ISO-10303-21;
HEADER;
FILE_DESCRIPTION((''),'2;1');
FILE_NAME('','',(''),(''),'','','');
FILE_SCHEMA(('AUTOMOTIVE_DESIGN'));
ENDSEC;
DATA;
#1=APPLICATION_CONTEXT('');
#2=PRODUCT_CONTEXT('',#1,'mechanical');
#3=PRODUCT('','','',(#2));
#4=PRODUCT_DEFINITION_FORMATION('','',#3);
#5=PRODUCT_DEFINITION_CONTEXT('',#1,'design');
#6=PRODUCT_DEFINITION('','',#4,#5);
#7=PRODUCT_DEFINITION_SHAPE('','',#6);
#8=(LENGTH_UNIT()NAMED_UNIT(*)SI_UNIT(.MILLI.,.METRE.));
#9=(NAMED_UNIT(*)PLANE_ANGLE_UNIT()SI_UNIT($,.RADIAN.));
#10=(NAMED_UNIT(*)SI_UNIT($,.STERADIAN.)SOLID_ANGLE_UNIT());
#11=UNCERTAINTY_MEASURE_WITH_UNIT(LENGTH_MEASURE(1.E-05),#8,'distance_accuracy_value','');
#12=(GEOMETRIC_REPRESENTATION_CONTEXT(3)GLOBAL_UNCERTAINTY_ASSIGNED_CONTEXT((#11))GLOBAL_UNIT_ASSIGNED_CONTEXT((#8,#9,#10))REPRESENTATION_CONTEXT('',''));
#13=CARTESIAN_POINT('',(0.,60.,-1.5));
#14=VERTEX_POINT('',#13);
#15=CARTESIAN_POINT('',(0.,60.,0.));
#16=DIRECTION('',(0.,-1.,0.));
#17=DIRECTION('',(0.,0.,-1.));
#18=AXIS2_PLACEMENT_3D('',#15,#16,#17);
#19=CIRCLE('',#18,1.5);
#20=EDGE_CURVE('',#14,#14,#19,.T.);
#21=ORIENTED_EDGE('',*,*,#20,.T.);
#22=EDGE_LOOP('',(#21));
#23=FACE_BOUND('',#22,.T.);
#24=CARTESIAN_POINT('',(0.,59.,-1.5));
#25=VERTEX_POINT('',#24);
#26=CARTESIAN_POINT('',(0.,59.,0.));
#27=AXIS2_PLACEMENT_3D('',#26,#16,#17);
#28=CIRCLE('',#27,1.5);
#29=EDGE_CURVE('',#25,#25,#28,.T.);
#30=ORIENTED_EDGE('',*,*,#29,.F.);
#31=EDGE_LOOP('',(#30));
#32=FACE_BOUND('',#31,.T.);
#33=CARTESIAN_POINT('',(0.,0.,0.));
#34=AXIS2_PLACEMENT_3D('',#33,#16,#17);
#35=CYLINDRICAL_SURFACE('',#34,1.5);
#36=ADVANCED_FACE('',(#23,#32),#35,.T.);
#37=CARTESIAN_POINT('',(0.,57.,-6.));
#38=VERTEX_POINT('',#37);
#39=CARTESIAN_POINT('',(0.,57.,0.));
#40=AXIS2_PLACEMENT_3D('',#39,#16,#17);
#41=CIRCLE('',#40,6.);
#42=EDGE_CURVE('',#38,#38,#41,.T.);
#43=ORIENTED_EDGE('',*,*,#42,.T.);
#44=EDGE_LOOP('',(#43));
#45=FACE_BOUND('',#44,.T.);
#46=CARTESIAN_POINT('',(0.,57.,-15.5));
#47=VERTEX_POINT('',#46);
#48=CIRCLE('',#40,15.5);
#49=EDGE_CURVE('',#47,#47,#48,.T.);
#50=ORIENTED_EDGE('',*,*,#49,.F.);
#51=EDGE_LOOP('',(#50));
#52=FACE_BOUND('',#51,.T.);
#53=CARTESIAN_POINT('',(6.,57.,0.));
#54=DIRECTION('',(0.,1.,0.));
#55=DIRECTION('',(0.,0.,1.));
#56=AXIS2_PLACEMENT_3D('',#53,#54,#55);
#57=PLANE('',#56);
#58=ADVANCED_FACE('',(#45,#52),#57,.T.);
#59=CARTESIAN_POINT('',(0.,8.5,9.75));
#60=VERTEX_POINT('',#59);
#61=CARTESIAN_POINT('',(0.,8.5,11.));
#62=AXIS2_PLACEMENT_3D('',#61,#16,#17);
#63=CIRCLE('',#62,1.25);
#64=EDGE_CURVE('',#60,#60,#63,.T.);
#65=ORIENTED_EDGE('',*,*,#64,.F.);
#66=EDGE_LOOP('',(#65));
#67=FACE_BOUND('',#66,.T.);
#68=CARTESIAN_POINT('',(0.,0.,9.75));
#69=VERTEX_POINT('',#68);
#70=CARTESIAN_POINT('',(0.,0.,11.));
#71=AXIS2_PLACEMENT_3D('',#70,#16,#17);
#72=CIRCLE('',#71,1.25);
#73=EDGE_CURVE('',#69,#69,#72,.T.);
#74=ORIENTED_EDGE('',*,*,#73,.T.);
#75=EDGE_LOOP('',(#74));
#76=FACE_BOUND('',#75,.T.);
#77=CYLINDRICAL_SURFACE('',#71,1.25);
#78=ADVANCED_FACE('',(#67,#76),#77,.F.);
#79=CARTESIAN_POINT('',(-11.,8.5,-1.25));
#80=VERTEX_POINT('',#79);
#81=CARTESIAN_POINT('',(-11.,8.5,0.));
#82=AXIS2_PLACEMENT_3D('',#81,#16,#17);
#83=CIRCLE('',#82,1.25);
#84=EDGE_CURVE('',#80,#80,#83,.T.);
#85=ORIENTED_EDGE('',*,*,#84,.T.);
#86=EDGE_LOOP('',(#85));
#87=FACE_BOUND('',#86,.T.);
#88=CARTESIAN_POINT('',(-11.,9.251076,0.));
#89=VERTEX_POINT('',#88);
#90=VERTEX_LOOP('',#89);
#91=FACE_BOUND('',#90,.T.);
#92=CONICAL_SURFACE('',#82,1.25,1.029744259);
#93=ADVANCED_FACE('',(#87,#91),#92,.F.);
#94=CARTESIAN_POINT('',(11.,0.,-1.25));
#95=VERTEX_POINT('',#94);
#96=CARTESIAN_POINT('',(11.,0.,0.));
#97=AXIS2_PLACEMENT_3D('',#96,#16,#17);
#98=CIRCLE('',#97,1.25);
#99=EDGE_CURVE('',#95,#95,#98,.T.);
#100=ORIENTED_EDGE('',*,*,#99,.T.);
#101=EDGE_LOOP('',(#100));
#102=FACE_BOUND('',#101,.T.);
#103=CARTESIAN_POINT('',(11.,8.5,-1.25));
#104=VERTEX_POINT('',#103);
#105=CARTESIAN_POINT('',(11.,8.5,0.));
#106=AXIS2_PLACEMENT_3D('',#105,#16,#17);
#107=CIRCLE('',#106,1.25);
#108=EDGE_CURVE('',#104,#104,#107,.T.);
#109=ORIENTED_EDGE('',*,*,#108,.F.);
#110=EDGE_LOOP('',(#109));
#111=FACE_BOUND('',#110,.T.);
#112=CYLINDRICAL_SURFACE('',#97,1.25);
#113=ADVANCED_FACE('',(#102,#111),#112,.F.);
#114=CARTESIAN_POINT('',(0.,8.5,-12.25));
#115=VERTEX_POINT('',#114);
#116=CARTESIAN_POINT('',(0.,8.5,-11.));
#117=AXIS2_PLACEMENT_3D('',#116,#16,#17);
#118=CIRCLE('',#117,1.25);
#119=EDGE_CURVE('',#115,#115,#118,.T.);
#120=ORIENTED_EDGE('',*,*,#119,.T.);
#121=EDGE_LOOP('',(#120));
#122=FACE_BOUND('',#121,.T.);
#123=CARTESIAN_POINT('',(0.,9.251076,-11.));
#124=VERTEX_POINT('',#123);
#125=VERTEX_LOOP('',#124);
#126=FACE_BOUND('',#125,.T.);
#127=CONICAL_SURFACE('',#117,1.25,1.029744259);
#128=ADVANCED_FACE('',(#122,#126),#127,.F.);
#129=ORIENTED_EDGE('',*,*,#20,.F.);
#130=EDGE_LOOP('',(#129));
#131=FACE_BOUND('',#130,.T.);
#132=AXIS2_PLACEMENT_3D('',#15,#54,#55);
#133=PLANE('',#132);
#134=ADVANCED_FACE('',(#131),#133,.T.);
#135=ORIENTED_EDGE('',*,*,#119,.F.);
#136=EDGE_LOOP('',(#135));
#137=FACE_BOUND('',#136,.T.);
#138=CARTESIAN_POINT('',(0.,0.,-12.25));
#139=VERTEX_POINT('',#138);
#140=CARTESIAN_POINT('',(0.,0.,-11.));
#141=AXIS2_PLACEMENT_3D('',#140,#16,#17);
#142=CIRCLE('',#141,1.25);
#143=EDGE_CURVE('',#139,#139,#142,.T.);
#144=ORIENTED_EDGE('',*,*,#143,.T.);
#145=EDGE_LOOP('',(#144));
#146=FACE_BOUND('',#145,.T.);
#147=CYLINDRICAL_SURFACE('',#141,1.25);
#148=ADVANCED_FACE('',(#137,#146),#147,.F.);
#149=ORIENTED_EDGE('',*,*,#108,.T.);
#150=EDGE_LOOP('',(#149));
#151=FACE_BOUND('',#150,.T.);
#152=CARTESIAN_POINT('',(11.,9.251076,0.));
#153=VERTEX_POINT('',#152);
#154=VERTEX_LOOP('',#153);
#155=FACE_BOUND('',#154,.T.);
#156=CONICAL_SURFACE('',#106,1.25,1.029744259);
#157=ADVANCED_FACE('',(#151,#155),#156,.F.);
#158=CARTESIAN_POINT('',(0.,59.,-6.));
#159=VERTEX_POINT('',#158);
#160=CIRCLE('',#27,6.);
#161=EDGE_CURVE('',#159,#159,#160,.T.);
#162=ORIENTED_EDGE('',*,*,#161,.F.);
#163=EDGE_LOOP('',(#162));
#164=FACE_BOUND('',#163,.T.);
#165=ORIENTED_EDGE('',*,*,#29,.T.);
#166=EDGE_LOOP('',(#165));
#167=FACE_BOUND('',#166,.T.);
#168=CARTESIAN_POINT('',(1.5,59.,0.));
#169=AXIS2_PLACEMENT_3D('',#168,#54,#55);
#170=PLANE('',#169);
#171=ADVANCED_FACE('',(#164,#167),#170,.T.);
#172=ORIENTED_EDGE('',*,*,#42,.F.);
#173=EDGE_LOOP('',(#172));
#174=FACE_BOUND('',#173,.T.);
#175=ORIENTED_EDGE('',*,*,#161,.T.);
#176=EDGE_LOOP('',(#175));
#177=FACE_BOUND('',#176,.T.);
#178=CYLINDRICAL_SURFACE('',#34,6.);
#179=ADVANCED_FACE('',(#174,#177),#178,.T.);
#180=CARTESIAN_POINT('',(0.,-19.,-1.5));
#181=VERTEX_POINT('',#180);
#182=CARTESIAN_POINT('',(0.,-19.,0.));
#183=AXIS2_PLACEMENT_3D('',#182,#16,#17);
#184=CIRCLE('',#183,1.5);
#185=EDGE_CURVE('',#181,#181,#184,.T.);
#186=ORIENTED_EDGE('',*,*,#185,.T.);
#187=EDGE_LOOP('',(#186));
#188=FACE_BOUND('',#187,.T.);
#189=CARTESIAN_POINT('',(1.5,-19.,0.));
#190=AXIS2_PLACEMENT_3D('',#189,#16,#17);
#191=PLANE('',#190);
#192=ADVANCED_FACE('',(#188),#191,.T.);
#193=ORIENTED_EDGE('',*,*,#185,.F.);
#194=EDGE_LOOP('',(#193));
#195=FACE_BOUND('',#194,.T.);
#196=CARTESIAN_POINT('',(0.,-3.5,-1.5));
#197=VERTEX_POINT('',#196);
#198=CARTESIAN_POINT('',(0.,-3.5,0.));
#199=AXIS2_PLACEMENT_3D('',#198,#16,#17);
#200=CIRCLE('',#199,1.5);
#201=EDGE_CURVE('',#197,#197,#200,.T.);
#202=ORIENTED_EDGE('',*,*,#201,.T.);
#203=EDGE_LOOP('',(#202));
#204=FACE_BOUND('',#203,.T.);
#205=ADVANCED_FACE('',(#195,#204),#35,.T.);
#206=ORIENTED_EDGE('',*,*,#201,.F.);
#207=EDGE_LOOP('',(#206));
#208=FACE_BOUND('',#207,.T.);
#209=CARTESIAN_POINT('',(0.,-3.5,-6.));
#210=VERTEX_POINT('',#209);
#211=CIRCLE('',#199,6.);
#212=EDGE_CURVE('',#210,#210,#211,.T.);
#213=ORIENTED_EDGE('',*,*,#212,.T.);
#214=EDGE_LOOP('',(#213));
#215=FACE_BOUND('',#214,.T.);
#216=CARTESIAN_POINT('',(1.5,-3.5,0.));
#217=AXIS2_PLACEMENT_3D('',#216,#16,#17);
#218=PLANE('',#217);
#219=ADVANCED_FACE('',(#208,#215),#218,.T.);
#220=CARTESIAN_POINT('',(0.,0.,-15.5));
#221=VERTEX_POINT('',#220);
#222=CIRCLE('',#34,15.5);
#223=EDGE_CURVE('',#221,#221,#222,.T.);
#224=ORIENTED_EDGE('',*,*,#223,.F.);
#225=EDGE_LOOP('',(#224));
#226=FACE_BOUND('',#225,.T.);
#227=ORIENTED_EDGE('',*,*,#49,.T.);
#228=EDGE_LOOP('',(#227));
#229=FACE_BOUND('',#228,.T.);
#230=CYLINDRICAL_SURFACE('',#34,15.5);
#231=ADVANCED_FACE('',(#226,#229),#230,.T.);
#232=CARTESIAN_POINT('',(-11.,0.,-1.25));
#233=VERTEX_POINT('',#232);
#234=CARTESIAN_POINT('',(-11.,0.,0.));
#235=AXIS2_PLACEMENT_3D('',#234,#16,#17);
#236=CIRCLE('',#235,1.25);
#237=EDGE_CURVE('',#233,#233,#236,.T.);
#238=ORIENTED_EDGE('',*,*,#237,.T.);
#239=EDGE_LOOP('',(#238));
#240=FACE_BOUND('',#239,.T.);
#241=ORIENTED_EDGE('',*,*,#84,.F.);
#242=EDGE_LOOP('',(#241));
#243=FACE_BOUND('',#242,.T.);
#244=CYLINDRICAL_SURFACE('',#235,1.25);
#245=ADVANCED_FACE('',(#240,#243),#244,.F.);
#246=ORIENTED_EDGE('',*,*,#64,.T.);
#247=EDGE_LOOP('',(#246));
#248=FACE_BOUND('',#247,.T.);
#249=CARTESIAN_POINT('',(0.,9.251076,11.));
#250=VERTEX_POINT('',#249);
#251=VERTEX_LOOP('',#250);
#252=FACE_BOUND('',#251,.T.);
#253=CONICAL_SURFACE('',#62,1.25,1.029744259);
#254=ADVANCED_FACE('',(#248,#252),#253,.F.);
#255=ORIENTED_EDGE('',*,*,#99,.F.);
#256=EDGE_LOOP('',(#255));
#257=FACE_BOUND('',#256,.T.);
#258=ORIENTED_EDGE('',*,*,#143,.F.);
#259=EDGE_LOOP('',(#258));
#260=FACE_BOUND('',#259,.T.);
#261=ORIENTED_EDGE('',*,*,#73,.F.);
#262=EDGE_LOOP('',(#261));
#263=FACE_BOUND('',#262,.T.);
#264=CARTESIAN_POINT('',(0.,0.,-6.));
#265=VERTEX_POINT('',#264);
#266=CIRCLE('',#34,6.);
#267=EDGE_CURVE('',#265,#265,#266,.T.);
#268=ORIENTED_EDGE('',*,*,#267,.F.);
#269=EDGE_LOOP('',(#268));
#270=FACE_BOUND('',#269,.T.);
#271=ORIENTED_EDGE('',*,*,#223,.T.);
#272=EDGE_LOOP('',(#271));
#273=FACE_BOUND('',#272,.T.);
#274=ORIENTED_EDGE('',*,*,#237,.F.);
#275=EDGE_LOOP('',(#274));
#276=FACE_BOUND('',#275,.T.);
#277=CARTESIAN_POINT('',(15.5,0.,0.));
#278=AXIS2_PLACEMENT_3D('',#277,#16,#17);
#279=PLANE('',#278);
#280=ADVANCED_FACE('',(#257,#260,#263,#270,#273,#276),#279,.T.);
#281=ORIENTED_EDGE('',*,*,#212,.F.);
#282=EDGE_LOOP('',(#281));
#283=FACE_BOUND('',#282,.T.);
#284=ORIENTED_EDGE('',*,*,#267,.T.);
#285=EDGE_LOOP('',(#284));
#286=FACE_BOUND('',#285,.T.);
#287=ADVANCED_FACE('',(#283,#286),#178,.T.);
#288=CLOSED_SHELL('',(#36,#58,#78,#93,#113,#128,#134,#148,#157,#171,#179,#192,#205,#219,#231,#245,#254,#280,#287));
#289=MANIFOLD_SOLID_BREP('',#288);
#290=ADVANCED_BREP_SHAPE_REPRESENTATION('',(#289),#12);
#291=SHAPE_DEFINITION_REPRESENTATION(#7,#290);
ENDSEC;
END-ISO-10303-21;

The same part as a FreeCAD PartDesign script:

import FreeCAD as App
import Part
import Sketcher
from FreeCAD import Vector


def add_polygon(sketch, points):
    """Adds a closed chain of lines whose ends are joined by coincident constraints."""
    first, n = sketch.GeometryCount, len(points)
    for a, b in zip(points, points[1:] + points[:1]):
        sketch.addGeometry(Part.LineSegment(App.Vector(*a, 0), App.Vector(*b, 0)), False)
    for i in range(n):
        sketch.addConstraint(Sketcher.Constraint("Coincident", first + i, 2, first + (i + 1) % n, 1))

doc = App.newDocument("Part")
body = doc.addObject("PartDesign::Body", "Body")

# Sketch on XY plane
sketch1 = body.newObject("Sketcher::SketchObject", "Sketch")
sketch1.AttachmentSupport = (doc.getObject("XY_Plane"), [""])
sketch1.MapMode = "FlatFace"
add_polygon(sketch1, [(0, 60), (0, -19), (1.5, -19), (1.5, -3.5), (6, -3.5), (6, 0), (15.5, 0), (15.5, 57), (6, 57), (6, 59), (1.5, 59), (1.5, 60)])  # lines 0-11
sketch1.addConstraint([
    Sketcher.Constraint("Vertical", 0),
    Sketcher.Constraint("Horizontal", 1),
    Sketcher.Constraint("Vertical", 2),
    Sketcher.Constraint("Horizontal", 3),
    Sketcher.Constraint("Vertical", 4),
    Sketcher.Constraint("Horizontal", 5),
    Sketcher.Constraint("Vertical", 6),
    Sketcher.Constraint("Horizontal", 7),
    Sketcher.Constraint("Vertical", 8),
    Sketcher.Constraint("Horizontal", 9),
    Sketcher.Constraint("Vertical", 10),
    Sketcher.Constraint("Horizontal", 11),
    Sketcher.Constraint("PointOnObject", 0, 2, -2),
    Sketcher.Constraint("PointOnObject", 4, 2, -1),
    Sketcher.Constraint("Vertical", 4, 2, 7, 2),
    Sketcher.Constraint("Vertical", 2, 2, 9, 2),
    Sketcher.Constraint("DistanceY", 0, 2, 0, 1, 79.0),
    Sketcher.Constraint("DistanceY", 6, 1, 6, 2, 57.0),
    Sketcher.Constraint("DistanceY", 8, 1, 8, 2, 2.0),
    Sketcher.Constraint("DistanceY", 10, 1, 10, 2, 1.0),
    Sketcher.Constraint("DistanceX", 1, 1, 1, 2, 1.5),
    Sketcher.Constraint("DistanceX", 3, 1, 3, 2, 4.5),
    Sketcher.Constraint("DistanceX", 5, 1, 5, 2, 9.5),
    Sketcher.Constraint("DistanceY", 2, 1, 2, 2, 15.5),
])
revolution = body.newObject("PartDesign::Revolution", "Revolution")
revolution.Profile = sketch1
revolution.ReferenceAxis = (sketch1, ["V_Axis"])
revolution.Angle = 360

# Sketch on XZ plane
sketch2 = body.newObject("Sketcher::SketchObject", "Sketch001")
sketch2.AttachmentSupport = (doc.getObject("XZ_Plane"), [""])
sketch2.MapMode = "FlatFace"
sketch2.addGeometry([
    Part.Circle(Vector(0, 11, 0), Vector(0, 0, 1), 1.2),
    Part.Circle(Vector(11, 0, 0), Vector(0, 0, 1), 1.2),
    Part.Circle(Vector(0, -11, 0), Vector(0, 0, 1), 1.2),
    Part.Circle(Vector(-11, 0, 0), Vector(0, 0, 1), 1.2),
], False)
sketch2.addConstraint([
    Sketcher.Constraint("Equal", 0, 1),
    Sketcher.Constraint("Equal", 1, 2),
    Sketcher.Constraint("Equal", 2, 3),
    Sketcher.Constraint("Symmetric", 0, 3, 2, 3, -1, 1),
    Sketcher.Constraint("Symmetric", 1, 3, 3, 3, -1, 1),
    Sketcher.Constraint("PointOnObject", 0, 3, -2),
    Sketcher.Constraint("PointOnObject", 1, 3, -1),
    Sketcher.Constraint("Diameter", 0, 2.5),
    Sketcher.Constraint("DistanceY", -1, 1, 0, 3, 11.0),
    Sketcher.Constraint("DistanceX", -1, 1, 1, 3, 11.0),
])
doc.recompute()
hole = body.newObject("PartDesign::Hole", "Hole")
hole.Profile = sketch2
hole.ThreadType = "None"
hole.Diameter = 2.5
hole.DepthType = "Dimension"
hole.Depth = 8.5
hole.DrillPoint = "Angled"
hole.DrillPointAngle = 118

doc.recompute()
